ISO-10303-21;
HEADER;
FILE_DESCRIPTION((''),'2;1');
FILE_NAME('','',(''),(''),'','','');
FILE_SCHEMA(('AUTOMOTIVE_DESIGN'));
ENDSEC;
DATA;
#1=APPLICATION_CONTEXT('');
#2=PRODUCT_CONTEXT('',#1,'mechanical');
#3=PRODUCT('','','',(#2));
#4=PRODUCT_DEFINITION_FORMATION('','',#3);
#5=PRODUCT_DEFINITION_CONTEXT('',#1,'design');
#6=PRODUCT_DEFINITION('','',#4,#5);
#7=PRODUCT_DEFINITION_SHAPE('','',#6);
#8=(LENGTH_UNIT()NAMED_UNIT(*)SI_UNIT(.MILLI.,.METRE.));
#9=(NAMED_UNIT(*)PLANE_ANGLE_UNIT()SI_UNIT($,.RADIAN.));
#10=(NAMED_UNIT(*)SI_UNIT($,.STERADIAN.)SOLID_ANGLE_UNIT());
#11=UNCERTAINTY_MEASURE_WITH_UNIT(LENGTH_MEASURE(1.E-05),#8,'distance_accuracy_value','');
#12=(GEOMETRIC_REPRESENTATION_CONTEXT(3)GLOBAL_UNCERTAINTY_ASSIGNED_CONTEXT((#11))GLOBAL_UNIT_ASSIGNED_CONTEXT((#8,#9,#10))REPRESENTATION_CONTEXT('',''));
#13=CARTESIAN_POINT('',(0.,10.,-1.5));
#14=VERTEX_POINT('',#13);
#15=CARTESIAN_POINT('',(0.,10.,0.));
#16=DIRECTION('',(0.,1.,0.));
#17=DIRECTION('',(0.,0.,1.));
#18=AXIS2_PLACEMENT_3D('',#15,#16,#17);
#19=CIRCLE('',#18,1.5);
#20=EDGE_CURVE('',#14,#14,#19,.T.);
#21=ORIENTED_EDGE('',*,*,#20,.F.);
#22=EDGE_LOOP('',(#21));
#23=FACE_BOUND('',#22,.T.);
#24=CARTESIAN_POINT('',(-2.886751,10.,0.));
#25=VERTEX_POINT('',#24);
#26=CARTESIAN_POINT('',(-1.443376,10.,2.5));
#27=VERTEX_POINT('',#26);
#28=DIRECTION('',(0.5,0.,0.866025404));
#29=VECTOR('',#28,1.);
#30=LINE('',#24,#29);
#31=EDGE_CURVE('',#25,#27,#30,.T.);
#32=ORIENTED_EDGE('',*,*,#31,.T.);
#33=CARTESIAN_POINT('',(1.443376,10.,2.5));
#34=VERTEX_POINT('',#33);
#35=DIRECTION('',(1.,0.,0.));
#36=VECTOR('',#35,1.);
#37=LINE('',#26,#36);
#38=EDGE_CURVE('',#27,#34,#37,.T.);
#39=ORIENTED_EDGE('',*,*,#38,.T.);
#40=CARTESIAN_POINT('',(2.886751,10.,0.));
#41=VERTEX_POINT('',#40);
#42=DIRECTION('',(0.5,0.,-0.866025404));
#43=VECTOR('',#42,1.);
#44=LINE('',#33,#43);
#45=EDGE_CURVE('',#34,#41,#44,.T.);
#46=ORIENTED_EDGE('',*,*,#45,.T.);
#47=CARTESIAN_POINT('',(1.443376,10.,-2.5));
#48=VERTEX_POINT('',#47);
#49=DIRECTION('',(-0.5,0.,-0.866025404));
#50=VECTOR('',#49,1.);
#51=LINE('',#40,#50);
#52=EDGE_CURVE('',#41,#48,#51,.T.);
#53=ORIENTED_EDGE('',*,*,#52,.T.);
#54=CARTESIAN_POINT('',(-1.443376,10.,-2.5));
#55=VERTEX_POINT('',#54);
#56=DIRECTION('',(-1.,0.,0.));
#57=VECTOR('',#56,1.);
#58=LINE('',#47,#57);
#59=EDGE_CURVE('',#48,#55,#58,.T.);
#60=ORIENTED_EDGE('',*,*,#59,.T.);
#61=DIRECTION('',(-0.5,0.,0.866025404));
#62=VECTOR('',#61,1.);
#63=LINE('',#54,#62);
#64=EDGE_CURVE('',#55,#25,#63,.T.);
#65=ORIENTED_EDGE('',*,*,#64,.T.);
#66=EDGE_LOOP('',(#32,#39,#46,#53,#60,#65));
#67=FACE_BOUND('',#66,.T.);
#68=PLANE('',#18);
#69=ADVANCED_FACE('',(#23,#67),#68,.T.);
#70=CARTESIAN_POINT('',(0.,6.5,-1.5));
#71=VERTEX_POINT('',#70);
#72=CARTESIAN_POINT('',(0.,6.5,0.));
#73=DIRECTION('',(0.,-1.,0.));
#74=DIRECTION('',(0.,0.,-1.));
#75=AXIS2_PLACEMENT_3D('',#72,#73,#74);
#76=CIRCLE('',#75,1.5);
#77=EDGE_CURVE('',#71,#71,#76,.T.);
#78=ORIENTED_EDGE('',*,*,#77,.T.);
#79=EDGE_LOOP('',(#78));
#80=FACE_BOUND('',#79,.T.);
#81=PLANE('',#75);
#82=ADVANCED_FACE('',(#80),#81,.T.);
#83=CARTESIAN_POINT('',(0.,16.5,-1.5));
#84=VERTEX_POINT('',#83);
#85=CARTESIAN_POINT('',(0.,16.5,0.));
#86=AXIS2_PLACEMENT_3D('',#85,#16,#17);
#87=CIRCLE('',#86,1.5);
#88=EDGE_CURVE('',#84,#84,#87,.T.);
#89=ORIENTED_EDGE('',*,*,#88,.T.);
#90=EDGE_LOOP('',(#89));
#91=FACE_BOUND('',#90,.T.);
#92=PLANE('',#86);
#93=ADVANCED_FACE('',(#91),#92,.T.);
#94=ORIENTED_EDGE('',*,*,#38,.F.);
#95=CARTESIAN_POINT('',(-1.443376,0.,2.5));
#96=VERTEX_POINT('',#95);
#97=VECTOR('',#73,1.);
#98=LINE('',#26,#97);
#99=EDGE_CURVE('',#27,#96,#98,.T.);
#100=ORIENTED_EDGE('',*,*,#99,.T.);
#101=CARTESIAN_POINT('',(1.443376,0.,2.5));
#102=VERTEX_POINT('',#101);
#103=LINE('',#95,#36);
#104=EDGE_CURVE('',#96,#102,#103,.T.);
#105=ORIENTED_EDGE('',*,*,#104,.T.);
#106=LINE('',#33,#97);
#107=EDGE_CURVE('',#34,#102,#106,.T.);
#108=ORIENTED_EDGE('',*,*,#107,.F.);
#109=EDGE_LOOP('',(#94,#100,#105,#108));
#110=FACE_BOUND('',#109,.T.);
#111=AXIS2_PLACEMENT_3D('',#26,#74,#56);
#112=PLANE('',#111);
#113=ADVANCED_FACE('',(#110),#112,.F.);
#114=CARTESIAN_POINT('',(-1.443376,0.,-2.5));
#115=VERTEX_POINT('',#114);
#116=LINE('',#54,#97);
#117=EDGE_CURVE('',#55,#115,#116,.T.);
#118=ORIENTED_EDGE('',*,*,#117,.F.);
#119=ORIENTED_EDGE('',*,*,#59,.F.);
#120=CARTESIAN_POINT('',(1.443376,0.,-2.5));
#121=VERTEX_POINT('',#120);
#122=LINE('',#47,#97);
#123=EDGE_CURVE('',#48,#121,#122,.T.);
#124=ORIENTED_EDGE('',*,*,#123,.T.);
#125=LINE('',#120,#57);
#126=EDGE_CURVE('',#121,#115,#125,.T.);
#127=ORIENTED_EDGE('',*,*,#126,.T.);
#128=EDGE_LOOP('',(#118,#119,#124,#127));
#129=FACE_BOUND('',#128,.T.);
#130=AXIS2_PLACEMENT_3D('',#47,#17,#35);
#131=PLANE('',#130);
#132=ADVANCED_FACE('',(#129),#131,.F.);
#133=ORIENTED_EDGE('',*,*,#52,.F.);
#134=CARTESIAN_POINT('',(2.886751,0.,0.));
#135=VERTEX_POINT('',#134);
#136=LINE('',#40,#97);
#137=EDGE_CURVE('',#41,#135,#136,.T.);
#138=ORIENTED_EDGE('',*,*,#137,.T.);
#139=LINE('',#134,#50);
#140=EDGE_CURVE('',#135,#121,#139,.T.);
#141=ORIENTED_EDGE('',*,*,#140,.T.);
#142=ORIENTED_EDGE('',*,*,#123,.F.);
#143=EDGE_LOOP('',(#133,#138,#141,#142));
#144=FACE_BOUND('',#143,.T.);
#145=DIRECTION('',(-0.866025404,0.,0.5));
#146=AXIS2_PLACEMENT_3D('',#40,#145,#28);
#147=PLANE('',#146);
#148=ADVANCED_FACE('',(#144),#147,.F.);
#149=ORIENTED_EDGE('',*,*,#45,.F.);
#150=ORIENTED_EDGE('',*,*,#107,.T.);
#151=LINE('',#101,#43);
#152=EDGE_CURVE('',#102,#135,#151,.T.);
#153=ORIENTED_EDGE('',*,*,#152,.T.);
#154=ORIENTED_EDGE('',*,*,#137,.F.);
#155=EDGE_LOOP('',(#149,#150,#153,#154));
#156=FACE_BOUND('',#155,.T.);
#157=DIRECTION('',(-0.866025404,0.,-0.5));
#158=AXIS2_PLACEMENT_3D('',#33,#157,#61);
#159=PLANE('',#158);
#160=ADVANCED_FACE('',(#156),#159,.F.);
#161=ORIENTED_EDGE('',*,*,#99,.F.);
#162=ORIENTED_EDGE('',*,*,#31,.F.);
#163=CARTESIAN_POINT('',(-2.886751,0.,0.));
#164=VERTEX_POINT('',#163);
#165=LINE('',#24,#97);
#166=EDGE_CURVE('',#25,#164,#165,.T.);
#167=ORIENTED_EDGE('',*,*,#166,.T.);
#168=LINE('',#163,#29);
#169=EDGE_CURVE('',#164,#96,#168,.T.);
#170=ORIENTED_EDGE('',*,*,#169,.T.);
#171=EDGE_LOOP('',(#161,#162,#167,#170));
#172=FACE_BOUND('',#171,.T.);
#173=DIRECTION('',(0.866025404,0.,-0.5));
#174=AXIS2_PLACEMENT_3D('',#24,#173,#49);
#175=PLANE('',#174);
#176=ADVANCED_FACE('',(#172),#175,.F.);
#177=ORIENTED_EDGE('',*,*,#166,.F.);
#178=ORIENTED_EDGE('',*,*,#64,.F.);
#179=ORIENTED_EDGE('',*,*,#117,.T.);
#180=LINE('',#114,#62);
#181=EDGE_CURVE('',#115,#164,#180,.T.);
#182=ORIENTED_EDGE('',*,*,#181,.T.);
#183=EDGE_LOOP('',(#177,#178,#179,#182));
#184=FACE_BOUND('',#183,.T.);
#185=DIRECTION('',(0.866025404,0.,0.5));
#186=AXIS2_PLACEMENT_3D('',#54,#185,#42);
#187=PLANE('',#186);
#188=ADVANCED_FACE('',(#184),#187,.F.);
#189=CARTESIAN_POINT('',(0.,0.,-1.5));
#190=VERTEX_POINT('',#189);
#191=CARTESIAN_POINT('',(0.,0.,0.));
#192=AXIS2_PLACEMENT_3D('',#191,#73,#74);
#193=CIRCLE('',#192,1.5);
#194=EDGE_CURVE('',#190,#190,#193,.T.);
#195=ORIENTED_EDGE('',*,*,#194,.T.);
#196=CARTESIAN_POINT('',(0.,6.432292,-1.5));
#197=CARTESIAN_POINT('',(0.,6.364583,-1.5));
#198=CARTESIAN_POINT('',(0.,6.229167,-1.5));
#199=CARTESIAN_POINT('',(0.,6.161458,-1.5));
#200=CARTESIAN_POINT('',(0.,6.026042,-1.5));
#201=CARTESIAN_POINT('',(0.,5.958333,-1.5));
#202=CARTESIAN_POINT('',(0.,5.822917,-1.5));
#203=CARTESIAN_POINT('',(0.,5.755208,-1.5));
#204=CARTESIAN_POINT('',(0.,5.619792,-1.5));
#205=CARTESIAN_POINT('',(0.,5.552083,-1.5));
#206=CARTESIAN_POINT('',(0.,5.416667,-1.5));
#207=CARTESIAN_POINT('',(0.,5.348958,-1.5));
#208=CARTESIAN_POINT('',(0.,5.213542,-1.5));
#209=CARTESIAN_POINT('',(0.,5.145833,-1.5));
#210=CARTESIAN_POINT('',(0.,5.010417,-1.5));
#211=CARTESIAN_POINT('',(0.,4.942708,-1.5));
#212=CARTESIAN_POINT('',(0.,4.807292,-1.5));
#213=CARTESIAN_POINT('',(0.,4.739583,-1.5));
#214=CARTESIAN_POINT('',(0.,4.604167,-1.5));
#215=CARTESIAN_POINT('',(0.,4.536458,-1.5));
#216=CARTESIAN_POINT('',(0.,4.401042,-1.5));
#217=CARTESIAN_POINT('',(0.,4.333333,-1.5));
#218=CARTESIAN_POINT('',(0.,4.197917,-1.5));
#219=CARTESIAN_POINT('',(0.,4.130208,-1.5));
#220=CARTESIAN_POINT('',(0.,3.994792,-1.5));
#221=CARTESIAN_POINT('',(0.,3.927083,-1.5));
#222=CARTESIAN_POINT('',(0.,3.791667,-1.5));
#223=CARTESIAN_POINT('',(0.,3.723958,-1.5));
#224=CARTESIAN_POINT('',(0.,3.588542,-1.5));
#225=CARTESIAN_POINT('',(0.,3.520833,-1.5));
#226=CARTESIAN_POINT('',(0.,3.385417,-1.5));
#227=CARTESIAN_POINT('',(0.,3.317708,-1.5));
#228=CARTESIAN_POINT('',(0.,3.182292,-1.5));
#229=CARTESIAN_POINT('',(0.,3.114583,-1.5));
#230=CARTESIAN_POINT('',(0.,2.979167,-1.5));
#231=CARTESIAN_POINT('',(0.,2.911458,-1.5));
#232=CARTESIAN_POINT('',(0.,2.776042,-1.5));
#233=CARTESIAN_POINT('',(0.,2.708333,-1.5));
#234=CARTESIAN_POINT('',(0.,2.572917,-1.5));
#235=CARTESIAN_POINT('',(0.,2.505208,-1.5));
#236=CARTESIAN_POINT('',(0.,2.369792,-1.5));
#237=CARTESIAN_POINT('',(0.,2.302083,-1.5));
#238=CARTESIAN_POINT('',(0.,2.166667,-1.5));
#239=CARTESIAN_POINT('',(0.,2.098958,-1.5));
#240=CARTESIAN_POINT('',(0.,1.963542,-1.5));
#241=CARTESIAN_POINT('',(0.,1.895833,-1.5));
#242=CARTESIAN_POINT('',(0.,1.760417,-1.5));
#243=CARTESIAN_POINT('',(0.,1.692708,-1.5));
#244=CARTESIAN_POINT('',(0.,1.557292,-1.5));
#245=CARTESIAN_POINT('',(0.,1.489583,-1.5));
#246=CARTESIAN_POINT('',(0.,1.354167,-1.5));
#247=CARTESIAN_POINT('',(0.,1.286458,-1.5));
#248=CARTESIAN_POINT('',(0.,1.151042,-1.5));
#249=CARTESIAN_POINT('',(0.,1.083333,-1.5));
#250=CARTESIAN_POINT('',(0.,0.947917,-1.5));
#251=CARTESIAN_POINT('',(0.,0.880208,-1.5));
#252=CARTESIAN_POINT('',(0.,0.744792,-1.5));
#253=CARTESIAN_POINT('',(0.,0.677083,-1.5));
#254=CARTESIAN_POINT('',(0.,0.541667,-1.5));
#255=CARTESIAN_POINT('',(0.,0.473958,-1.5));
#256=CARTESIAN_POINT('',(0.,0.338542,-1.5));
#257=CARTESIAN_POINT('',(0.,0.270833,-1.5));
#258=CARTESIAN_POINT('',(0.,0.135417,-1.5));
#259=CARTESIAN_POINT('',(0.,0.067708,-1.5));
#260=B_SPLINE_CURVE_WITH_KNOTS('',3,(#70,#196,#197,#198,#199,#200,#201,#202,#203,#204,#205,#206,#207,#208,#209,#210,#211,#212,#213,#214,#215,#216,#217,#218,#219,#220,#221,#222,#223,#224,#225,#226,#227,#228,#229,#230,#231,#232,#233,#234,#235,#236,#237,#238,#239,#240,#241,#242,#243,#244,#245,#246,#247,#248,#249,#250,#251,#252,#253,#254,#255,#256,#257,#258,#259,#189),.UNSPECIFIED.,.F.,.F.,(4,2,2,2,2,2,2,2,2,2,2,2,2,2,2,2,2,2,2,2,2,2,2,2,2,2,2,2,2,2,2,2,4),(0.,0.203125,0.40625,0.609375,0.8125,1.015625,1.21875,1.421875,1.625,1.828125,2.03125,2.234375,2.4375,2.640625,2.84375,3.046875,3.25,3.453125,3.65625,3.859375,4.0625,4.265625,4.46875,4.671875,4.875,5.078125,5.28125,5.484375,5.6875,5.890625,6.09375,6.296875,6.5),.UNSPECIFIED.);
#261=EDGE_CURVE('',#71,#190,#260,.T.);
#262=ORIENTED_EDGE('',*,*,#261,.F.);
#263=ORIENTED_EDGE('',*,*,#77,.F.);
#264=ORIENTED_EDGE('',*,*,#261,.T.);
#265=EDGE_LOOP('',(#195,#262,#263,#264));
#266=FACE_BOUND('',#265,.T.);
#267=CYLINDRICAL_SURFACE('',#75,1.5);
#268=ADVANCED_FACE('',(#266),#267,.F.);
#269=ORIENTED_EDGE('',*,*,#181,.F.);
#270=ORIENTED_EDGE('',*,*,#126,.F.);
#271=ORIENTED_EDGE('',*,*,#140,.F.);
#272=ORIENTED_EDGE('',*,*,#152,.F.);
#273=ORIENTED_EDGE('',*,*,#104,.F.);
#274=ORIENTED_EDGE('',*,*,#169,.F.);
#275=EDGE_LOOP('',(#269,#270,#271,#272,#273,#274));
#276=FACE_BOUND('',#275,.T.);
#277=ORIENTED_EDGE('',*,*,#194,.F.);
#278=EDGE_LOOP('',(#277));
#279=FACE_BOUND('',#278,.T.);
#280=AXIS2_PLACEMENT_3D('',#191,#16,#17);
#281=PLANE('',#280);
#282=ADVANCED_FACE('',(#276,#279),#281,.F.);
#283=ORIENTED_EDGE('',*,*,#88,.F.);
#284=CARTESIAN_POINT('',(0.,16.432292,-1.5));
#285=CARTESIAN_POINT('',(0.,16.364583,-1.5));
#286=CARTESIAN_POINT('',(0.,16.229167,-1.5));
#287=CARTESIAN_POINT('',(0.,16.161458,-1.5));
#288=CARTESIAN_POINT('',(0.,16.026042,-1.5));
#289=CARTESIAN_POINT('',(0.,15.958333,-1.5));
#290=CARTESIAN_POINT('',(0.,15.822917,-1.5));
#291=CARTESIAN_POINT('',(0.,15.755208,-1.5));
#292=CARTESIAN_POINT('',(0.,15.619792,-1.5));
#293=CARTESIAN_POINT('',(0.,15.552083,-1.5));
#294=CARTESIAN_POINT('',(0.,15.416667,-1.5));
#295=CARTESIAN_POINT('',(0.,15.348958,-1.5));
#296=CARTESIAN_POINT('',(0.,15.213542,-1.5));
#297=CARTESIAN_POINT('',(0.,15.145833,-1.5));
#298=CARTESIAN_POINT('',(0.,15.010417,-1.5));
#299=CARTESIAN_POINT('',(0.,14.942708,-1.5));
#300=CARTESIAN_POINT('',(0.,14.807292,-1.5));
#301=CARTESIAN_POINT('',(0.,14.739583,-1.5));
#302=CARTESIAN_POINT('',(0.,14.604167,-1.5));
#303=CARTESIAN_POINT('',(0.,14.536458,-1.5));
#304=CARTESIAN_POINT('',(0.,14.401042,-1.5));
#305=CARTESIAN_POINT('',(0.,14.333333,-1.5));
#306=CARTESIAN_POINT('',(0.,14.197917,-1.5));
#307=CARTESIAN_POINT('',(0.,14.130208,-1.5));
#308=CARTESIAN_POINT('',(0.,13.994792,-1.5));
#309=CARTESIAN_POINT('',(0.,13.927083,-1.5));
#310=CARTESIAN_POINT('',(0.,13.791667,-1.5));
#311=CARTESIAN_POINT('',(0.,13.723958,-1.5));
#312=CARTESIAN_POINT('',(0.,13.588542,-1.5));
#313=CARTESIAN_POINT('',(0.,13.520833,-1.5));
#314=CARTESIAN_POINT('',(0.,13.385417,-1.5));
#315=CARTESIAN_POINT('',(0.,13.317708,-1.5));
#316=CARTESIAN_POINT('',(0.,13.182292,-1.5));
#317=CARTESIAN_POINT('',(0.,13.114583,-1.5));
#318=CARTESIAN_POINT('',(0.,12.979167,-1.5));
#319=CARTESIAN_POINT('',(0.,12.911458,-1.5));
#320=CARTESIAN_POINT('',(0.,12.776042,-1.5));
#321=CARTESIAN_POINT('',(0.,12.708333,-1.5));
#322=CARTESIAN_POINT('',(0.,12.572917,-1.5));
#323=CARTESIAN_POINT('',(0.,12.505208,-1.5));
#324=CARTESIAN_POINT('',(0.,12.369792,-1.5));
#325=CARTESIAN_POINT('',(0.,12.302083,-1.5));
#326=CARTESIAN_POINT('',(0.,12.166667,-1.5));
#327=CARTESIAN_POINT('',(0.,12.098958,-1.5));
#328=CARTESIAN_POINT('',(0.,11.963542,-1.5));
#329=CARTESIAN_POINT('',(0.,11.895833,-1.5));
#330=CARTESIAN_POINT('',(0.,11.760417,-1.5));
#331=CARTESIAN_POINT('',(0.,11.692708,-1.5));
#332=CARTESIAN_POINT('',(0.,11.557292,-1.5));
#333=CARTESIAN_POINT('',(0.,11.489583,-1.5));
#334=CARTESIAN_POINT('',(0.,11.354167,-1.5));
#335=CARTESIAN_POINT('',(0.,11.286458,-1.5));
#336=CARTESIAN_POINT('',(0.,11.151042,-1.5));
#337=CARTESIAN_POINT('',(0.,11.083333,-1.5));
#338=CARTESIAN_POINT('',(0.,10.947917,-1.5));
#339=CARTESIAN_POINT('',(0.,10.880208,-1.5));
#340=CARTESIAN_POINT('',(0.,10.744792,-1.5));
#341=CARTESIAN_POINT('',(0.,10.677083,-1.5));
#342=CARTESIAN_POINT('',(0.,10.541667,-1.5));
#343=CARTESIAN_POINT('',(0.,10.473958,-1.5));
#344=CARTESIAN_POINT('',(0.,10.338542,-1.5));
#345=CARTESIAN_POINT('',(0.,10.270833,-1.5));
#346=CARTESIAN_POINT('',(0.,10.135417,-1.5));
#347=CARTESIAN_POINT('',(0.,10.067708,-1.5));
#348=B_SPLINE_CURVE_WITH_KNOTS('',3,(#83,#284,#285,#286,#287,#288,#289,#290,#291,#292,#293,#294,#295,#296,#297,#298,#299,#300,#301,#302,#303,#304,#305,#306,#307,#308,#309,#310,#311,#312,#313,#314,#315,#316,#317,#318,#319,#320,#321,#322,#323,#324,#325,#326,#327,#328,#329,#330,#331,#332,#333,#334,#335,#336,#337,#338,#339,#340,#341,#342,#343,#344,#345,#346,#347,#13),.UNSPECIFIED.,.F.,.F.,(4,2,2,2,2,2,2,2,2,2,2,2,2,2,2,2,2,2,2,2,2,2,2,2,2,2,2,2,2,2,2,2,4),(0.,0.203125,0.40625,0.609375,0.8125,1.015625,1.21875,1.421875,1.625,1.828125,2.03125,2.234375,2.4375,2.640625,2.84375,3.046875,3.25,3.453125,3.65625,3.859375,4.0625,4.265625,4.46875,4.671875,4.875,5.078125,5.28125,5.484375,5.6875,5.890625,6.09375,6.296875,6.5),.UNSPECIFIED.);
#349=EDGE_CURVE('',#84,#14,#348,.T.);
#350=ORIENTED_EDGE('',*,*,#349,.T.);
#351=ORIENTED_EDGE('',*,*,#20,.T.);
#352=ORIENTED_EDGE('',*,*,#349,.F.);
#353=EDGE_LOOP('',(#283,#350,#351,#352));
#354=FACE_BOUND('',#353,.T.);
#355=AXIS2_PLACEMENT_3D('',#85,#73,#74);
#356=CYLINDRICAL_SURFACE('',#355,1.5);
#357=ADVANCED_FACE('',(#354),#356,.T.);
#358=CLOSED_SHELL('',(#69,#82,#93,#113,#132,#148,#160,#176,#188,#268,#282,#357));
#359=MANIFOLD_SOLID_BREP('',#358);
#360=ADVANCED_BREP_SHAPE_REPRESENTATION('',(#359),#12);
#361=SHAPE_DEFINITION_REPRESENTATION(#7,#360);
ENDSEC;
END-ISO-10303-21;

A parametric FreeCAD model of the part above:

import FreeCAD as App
import Part
import Sketcher

V = App.Vector
Q = App.Units.Quantity

doc = App.newDocument("Part")
body = doc.addObject("PartDesign::Body", "Body")

# Sketch on XZ plane
sketch1 = body.newObject("Sketcher::SketchObject", "Sketch")
sketch1.AttachmentSupport = (doc.getObject("XZ_Plane"), [""])
sketch1.MapMode = "FlatFace"
sketch1.addGeometry(Part.LineSegment(V(1.443376, 2.5, 0), V(2.886751, 0, 0)), False)
sketch1.addGeometry(Part.LineSegment(V(2.886751, 0, 0), V(1.443376, -2.5, 0)), False)
sketch1.addGeometry(Part.LineSegment(V(1.443376, -2.5, 0), V(-1.443376, -2.5, 0)), False)
sketch1.addGeometry(Part.LineSegment(V(-1.443376, -2.5, 0), V(-2.886751, 0, 0)), False)
sketch1.addGeometry(Part.LineSegment(V(-2.886751, 0, 0), V(-1.443376, 2.5, 0)), False)
sketch1.addGeometry(Part.LineSegment(V(-1.443376, 2.5, 0), V(1.443376, 2.5, 0)), False)
sketch1.addConstraint(Sketcher.Constraint("Coincident", 0, 2, 1, 1))
sketch1.addConstraint(Sketcher.Constraint("Coincident", 1, 2, 2, 1))
sketch1.addConstraint(Sketcher.Constraint("Coincident", 2, 2, 3, 1))
sketch1.addConstraint(Sketcher.Constraint("Coincident", 3, 2, 4, 1))
sketch1.addConstraint(Sketcher.Constraint("Coincident", 4, 2, 5, 1))
sketch1.addConstraint(Sketcher.Constraint("Coincident", 5, 2, 0, 1))
sketch1.addConstraint(Sketcher.Constraint("Horizontal", 2))
sketch1.addConstraint(Sketcher.Constraint("Horizontal", 5))
sketch1.addConstraint(Sketcher.Constraint("Symmetric", 0, 2, 3, 2, -1, 1))
sketch1.addConstraint(Sketcher.Constraint("Symmetric", 1, 2, 4, 2, -1, 1))
sketch1.addConstraint(Sketcher.Constraint("PointOnObject", 0, 2, -1))
sketch1.addConstraint(Sketcher.Constraint("Parallel", 0, 3))
sketch1.addConstraint(Sketcher.Constraint("Vertical", 2, 2, 4, 2))
sketch1.addConstraint(Sketcher.Constraint("Angle", 0, Q("-60 deg")))
sketch1.addConstraint(Sketcher.Constraint("DistanceY", 2, 2, 4, 2, 5.0))
sketch1.addConstraint(Sketcher.Constraint("DistanceX", 2, 2, 2, 1, 2.886751))
pad1 = body.newObject("PartDesign::Pad", "Pad")
pad1.Profile = sketch1
pad1.Length = 10
pad1.Reversed = True

# Sketch on XZ plane
sketch2 = body.newObject("Sketcher::SketchObject", "Sketch001")
sketch2.AttachmentSupport = (doc.getObject("XZ_Plane"), [""])
sketch2.MapMode = "FlatFace"
sketch2.AttachmentOffset = App.Placement(V(0, 0, -10), App.Rotation())
sketch2.addGeometry(Part.Circle(V(0, 0, 0), V(0, 0, 1), 1.5), False)
sketch2.addConstraint(Sketcher.Constraint("Coincident", 0, 3, -1, 1))
sketch2.addConstraint(Sketcher.Constraint("Diameter", 0, 3.0))
pad2 = body.newObject("PartDesign::Pad", "Pad001")
pad2.Profile = sketch2
pad2.Length = 6.5
pad2.Reversed = True

# Sketch on XZ plane
sketch3 = body.newObject("Sketcher::SketchObject", "Sketch002")
sketch3.AttachmentSupport = (doc.getObject("XZ_Plane"), [""])
sketch3.MapMode = "FlatFace"
sketch3.addGeometry(Part.Circle(V(0, 0, 0), V(0, 0, 1), 1.5), False)
sketch3.addConstraint(Sketcher.Constraint("Coincident", 0, 3, -1, 1))
sketch3.addConstraint(Sketcher.Constraint("Diameter", 0, 3.0))
pocket1 = body.newObject("PartDesign::Pocket", "Pocket")
pocket1.Profile = sketch3
pocket1.Length = 6.5

doc.recompute()
